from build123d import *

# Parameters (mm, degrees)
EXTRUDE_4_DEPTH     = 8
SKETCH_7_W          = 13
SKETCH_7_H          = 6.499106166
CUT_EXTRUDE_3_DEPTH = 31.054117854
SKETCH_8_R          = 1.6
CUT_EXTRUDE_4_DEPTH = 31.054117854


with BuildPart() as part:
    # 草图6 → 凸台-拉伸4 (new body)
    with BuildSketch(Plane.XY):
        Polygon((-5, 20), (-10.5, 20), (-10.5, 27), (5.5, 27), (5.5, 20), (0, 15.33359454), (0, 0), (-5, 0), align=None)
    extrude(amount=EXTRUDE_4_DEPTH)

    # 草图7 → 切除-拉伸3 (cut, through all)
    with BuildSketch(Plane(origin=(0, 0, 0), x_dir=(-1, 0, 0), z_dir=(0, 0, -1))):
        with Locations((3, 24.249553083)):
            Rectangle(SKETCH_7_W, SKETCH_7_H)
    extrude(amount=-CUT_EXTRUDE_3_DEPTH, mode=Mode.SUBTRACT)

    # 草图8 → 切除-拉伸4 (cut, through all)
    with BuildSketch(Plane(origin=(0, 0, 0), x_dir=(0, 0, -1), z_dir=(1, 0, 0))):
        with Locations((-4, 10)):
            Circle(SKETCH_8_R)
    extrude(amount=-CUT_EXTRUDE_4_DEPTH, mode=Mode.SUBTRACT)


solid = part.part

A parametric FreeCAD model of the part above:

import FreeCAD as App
import Part
import Sketcher


def add_polygon(sketch, points):
    """Adds a closed chain of lines whose ends are joined by coincident constraints."""
    first, n = sketch.GeometryCount, len(points)
    for a, b in zip(points, points[1:] + points[:1]):
        sketch.addGeometry(Part.LineSegment(App.Vector(*a, 0), App.Vector(*b, 0)), False)
    for i in range(n):
        sketch.addConstraint(Sketcher.Constraint("Coincident", first + i, 2, first + (i + 1) % n, 1))

doc = App.newDocument("Part")
body = doc.addObject("PartDesign::Body", "Body")

# Sketch on XY plane
sketch1 = body.newObject("Sketcher::SketchObject", "Sketch")
sketch1.AttachmentSupport = (doc.getObject("XY_Plane"), [""])
sketch1.MapMode = "FlatFace"
add_polygon(sketch1, [(-10, 20), (-5, 20), (-5, 0), (0, 0), (0, 15), (6, 20), (6, 27), (-10, 27)])  # lines 0-7
sketch1.addConstraint([
    Sketcher.Constraint("Horizontal", 0),
    Sketcher.Constraint("Vertical", 1),
    Sketcher.Constraint("Horizontal", 2),
    Sketcher.Constraint("Vertical", 3),
    Sketcher.Constraint("Vertical", 5),
    Sketcher.Constraint("Horizontal", 6),
    Sketcher.Constraint("Vertical", 7),
    Sketcher.Constraint("Coincident", 2, 2, -1, 1),
    Sketcher.Constraint("Horizontal", 0, 2, 4, 2),
    Sketcher.Constraint("DistanceX", 2, 1, 2, 2, 5.0),
    Sketcher.Constraint("DistanceX", 6, 2, 6, 1, 16.0),
    Sketcher.Constraint("DistanceY", 1, 2, 1, 1, 20.0),
    Sketcher.Constraint("DistanceY", 5, 1, 5, 2, 7.0),
    Sketcher.Constraint("DistanceX", 0, 1, 0, 2, 5.5),
    Sketcher.Constraint("Distance", 4, 7.212859),
])
pad1 = body.newObject("PartDesign::Pad", "Pad")
pad1.Profile = sketch1
pad1.Length = 8

# Sketch on XY plane
sketch2 = body.newObject("Sketcher::SketchObject", "Sketch001")
sketch2.AttachmentSupport = (doc.getObject("XY_Plane"), [""])
sketch2.MapMode = "FlatFace"
add_polygon(sketch2, [(4, 27), (4, 21), (-10, 21), (-10, 27)])  # lines 0-3
sketch2.addConstraint([
    Sketcher.Constraint("Vertical", 0),
    Sketcher.Constraint("Horizontal", 1),
    Sketcher.Constraint("Vertical", 2),
    Sketcher.Constraint("Horizontal", 3),
    Sketcher.Constraint("DistanceX", 1, 2, 1, 1, 13.0),
    Sketcher.Constraint("DistanceY", -1, 1, 0, 2, 21.0),
    Sketcher.Constraint("DistanceX", -1, 1, 0, 2, 3.5),
    Sketcher.Constraint("DistanceY", 0, 2, 0, 1, 6.499106),
])
pocket1 = body.newObject("PartDesign::Pocket", "Pocket")
pocket1.Profile = sketch2
pocket1.Type = "ThroughAll"
pocket1.Reversed = True

# Sketch on YZ plane
sketch3 = body.newObject("Sketcher::SketchObject", "Sketch002")
sketch3.AttachmentSupport = (doc.getObject("YZ_Plane"), [""])
sketch3.MapMode = "FlatFace"
sketch3.addGeometry(Part.Circle(App.Vector(10, 4, 0), App.Vector(0, 0, 1), 1.6), False)
sketch3.addConstraint([
    Sketcher.Constraint("Diameter", 0, 3.2),
    Sketcher.Constraint("DistanceX", -1, 1, 0, 3, 10.0),
    Sketcher.Constraint("DistanceY", -1, 1, 0, 3, 4.0),
])
pocket2 = body.newObject("PartDesign::Pocket", "Pocket001")
pocket2.Profile = sketch3
pocket2.Type = "ThroughAll"

doc.recompute()
